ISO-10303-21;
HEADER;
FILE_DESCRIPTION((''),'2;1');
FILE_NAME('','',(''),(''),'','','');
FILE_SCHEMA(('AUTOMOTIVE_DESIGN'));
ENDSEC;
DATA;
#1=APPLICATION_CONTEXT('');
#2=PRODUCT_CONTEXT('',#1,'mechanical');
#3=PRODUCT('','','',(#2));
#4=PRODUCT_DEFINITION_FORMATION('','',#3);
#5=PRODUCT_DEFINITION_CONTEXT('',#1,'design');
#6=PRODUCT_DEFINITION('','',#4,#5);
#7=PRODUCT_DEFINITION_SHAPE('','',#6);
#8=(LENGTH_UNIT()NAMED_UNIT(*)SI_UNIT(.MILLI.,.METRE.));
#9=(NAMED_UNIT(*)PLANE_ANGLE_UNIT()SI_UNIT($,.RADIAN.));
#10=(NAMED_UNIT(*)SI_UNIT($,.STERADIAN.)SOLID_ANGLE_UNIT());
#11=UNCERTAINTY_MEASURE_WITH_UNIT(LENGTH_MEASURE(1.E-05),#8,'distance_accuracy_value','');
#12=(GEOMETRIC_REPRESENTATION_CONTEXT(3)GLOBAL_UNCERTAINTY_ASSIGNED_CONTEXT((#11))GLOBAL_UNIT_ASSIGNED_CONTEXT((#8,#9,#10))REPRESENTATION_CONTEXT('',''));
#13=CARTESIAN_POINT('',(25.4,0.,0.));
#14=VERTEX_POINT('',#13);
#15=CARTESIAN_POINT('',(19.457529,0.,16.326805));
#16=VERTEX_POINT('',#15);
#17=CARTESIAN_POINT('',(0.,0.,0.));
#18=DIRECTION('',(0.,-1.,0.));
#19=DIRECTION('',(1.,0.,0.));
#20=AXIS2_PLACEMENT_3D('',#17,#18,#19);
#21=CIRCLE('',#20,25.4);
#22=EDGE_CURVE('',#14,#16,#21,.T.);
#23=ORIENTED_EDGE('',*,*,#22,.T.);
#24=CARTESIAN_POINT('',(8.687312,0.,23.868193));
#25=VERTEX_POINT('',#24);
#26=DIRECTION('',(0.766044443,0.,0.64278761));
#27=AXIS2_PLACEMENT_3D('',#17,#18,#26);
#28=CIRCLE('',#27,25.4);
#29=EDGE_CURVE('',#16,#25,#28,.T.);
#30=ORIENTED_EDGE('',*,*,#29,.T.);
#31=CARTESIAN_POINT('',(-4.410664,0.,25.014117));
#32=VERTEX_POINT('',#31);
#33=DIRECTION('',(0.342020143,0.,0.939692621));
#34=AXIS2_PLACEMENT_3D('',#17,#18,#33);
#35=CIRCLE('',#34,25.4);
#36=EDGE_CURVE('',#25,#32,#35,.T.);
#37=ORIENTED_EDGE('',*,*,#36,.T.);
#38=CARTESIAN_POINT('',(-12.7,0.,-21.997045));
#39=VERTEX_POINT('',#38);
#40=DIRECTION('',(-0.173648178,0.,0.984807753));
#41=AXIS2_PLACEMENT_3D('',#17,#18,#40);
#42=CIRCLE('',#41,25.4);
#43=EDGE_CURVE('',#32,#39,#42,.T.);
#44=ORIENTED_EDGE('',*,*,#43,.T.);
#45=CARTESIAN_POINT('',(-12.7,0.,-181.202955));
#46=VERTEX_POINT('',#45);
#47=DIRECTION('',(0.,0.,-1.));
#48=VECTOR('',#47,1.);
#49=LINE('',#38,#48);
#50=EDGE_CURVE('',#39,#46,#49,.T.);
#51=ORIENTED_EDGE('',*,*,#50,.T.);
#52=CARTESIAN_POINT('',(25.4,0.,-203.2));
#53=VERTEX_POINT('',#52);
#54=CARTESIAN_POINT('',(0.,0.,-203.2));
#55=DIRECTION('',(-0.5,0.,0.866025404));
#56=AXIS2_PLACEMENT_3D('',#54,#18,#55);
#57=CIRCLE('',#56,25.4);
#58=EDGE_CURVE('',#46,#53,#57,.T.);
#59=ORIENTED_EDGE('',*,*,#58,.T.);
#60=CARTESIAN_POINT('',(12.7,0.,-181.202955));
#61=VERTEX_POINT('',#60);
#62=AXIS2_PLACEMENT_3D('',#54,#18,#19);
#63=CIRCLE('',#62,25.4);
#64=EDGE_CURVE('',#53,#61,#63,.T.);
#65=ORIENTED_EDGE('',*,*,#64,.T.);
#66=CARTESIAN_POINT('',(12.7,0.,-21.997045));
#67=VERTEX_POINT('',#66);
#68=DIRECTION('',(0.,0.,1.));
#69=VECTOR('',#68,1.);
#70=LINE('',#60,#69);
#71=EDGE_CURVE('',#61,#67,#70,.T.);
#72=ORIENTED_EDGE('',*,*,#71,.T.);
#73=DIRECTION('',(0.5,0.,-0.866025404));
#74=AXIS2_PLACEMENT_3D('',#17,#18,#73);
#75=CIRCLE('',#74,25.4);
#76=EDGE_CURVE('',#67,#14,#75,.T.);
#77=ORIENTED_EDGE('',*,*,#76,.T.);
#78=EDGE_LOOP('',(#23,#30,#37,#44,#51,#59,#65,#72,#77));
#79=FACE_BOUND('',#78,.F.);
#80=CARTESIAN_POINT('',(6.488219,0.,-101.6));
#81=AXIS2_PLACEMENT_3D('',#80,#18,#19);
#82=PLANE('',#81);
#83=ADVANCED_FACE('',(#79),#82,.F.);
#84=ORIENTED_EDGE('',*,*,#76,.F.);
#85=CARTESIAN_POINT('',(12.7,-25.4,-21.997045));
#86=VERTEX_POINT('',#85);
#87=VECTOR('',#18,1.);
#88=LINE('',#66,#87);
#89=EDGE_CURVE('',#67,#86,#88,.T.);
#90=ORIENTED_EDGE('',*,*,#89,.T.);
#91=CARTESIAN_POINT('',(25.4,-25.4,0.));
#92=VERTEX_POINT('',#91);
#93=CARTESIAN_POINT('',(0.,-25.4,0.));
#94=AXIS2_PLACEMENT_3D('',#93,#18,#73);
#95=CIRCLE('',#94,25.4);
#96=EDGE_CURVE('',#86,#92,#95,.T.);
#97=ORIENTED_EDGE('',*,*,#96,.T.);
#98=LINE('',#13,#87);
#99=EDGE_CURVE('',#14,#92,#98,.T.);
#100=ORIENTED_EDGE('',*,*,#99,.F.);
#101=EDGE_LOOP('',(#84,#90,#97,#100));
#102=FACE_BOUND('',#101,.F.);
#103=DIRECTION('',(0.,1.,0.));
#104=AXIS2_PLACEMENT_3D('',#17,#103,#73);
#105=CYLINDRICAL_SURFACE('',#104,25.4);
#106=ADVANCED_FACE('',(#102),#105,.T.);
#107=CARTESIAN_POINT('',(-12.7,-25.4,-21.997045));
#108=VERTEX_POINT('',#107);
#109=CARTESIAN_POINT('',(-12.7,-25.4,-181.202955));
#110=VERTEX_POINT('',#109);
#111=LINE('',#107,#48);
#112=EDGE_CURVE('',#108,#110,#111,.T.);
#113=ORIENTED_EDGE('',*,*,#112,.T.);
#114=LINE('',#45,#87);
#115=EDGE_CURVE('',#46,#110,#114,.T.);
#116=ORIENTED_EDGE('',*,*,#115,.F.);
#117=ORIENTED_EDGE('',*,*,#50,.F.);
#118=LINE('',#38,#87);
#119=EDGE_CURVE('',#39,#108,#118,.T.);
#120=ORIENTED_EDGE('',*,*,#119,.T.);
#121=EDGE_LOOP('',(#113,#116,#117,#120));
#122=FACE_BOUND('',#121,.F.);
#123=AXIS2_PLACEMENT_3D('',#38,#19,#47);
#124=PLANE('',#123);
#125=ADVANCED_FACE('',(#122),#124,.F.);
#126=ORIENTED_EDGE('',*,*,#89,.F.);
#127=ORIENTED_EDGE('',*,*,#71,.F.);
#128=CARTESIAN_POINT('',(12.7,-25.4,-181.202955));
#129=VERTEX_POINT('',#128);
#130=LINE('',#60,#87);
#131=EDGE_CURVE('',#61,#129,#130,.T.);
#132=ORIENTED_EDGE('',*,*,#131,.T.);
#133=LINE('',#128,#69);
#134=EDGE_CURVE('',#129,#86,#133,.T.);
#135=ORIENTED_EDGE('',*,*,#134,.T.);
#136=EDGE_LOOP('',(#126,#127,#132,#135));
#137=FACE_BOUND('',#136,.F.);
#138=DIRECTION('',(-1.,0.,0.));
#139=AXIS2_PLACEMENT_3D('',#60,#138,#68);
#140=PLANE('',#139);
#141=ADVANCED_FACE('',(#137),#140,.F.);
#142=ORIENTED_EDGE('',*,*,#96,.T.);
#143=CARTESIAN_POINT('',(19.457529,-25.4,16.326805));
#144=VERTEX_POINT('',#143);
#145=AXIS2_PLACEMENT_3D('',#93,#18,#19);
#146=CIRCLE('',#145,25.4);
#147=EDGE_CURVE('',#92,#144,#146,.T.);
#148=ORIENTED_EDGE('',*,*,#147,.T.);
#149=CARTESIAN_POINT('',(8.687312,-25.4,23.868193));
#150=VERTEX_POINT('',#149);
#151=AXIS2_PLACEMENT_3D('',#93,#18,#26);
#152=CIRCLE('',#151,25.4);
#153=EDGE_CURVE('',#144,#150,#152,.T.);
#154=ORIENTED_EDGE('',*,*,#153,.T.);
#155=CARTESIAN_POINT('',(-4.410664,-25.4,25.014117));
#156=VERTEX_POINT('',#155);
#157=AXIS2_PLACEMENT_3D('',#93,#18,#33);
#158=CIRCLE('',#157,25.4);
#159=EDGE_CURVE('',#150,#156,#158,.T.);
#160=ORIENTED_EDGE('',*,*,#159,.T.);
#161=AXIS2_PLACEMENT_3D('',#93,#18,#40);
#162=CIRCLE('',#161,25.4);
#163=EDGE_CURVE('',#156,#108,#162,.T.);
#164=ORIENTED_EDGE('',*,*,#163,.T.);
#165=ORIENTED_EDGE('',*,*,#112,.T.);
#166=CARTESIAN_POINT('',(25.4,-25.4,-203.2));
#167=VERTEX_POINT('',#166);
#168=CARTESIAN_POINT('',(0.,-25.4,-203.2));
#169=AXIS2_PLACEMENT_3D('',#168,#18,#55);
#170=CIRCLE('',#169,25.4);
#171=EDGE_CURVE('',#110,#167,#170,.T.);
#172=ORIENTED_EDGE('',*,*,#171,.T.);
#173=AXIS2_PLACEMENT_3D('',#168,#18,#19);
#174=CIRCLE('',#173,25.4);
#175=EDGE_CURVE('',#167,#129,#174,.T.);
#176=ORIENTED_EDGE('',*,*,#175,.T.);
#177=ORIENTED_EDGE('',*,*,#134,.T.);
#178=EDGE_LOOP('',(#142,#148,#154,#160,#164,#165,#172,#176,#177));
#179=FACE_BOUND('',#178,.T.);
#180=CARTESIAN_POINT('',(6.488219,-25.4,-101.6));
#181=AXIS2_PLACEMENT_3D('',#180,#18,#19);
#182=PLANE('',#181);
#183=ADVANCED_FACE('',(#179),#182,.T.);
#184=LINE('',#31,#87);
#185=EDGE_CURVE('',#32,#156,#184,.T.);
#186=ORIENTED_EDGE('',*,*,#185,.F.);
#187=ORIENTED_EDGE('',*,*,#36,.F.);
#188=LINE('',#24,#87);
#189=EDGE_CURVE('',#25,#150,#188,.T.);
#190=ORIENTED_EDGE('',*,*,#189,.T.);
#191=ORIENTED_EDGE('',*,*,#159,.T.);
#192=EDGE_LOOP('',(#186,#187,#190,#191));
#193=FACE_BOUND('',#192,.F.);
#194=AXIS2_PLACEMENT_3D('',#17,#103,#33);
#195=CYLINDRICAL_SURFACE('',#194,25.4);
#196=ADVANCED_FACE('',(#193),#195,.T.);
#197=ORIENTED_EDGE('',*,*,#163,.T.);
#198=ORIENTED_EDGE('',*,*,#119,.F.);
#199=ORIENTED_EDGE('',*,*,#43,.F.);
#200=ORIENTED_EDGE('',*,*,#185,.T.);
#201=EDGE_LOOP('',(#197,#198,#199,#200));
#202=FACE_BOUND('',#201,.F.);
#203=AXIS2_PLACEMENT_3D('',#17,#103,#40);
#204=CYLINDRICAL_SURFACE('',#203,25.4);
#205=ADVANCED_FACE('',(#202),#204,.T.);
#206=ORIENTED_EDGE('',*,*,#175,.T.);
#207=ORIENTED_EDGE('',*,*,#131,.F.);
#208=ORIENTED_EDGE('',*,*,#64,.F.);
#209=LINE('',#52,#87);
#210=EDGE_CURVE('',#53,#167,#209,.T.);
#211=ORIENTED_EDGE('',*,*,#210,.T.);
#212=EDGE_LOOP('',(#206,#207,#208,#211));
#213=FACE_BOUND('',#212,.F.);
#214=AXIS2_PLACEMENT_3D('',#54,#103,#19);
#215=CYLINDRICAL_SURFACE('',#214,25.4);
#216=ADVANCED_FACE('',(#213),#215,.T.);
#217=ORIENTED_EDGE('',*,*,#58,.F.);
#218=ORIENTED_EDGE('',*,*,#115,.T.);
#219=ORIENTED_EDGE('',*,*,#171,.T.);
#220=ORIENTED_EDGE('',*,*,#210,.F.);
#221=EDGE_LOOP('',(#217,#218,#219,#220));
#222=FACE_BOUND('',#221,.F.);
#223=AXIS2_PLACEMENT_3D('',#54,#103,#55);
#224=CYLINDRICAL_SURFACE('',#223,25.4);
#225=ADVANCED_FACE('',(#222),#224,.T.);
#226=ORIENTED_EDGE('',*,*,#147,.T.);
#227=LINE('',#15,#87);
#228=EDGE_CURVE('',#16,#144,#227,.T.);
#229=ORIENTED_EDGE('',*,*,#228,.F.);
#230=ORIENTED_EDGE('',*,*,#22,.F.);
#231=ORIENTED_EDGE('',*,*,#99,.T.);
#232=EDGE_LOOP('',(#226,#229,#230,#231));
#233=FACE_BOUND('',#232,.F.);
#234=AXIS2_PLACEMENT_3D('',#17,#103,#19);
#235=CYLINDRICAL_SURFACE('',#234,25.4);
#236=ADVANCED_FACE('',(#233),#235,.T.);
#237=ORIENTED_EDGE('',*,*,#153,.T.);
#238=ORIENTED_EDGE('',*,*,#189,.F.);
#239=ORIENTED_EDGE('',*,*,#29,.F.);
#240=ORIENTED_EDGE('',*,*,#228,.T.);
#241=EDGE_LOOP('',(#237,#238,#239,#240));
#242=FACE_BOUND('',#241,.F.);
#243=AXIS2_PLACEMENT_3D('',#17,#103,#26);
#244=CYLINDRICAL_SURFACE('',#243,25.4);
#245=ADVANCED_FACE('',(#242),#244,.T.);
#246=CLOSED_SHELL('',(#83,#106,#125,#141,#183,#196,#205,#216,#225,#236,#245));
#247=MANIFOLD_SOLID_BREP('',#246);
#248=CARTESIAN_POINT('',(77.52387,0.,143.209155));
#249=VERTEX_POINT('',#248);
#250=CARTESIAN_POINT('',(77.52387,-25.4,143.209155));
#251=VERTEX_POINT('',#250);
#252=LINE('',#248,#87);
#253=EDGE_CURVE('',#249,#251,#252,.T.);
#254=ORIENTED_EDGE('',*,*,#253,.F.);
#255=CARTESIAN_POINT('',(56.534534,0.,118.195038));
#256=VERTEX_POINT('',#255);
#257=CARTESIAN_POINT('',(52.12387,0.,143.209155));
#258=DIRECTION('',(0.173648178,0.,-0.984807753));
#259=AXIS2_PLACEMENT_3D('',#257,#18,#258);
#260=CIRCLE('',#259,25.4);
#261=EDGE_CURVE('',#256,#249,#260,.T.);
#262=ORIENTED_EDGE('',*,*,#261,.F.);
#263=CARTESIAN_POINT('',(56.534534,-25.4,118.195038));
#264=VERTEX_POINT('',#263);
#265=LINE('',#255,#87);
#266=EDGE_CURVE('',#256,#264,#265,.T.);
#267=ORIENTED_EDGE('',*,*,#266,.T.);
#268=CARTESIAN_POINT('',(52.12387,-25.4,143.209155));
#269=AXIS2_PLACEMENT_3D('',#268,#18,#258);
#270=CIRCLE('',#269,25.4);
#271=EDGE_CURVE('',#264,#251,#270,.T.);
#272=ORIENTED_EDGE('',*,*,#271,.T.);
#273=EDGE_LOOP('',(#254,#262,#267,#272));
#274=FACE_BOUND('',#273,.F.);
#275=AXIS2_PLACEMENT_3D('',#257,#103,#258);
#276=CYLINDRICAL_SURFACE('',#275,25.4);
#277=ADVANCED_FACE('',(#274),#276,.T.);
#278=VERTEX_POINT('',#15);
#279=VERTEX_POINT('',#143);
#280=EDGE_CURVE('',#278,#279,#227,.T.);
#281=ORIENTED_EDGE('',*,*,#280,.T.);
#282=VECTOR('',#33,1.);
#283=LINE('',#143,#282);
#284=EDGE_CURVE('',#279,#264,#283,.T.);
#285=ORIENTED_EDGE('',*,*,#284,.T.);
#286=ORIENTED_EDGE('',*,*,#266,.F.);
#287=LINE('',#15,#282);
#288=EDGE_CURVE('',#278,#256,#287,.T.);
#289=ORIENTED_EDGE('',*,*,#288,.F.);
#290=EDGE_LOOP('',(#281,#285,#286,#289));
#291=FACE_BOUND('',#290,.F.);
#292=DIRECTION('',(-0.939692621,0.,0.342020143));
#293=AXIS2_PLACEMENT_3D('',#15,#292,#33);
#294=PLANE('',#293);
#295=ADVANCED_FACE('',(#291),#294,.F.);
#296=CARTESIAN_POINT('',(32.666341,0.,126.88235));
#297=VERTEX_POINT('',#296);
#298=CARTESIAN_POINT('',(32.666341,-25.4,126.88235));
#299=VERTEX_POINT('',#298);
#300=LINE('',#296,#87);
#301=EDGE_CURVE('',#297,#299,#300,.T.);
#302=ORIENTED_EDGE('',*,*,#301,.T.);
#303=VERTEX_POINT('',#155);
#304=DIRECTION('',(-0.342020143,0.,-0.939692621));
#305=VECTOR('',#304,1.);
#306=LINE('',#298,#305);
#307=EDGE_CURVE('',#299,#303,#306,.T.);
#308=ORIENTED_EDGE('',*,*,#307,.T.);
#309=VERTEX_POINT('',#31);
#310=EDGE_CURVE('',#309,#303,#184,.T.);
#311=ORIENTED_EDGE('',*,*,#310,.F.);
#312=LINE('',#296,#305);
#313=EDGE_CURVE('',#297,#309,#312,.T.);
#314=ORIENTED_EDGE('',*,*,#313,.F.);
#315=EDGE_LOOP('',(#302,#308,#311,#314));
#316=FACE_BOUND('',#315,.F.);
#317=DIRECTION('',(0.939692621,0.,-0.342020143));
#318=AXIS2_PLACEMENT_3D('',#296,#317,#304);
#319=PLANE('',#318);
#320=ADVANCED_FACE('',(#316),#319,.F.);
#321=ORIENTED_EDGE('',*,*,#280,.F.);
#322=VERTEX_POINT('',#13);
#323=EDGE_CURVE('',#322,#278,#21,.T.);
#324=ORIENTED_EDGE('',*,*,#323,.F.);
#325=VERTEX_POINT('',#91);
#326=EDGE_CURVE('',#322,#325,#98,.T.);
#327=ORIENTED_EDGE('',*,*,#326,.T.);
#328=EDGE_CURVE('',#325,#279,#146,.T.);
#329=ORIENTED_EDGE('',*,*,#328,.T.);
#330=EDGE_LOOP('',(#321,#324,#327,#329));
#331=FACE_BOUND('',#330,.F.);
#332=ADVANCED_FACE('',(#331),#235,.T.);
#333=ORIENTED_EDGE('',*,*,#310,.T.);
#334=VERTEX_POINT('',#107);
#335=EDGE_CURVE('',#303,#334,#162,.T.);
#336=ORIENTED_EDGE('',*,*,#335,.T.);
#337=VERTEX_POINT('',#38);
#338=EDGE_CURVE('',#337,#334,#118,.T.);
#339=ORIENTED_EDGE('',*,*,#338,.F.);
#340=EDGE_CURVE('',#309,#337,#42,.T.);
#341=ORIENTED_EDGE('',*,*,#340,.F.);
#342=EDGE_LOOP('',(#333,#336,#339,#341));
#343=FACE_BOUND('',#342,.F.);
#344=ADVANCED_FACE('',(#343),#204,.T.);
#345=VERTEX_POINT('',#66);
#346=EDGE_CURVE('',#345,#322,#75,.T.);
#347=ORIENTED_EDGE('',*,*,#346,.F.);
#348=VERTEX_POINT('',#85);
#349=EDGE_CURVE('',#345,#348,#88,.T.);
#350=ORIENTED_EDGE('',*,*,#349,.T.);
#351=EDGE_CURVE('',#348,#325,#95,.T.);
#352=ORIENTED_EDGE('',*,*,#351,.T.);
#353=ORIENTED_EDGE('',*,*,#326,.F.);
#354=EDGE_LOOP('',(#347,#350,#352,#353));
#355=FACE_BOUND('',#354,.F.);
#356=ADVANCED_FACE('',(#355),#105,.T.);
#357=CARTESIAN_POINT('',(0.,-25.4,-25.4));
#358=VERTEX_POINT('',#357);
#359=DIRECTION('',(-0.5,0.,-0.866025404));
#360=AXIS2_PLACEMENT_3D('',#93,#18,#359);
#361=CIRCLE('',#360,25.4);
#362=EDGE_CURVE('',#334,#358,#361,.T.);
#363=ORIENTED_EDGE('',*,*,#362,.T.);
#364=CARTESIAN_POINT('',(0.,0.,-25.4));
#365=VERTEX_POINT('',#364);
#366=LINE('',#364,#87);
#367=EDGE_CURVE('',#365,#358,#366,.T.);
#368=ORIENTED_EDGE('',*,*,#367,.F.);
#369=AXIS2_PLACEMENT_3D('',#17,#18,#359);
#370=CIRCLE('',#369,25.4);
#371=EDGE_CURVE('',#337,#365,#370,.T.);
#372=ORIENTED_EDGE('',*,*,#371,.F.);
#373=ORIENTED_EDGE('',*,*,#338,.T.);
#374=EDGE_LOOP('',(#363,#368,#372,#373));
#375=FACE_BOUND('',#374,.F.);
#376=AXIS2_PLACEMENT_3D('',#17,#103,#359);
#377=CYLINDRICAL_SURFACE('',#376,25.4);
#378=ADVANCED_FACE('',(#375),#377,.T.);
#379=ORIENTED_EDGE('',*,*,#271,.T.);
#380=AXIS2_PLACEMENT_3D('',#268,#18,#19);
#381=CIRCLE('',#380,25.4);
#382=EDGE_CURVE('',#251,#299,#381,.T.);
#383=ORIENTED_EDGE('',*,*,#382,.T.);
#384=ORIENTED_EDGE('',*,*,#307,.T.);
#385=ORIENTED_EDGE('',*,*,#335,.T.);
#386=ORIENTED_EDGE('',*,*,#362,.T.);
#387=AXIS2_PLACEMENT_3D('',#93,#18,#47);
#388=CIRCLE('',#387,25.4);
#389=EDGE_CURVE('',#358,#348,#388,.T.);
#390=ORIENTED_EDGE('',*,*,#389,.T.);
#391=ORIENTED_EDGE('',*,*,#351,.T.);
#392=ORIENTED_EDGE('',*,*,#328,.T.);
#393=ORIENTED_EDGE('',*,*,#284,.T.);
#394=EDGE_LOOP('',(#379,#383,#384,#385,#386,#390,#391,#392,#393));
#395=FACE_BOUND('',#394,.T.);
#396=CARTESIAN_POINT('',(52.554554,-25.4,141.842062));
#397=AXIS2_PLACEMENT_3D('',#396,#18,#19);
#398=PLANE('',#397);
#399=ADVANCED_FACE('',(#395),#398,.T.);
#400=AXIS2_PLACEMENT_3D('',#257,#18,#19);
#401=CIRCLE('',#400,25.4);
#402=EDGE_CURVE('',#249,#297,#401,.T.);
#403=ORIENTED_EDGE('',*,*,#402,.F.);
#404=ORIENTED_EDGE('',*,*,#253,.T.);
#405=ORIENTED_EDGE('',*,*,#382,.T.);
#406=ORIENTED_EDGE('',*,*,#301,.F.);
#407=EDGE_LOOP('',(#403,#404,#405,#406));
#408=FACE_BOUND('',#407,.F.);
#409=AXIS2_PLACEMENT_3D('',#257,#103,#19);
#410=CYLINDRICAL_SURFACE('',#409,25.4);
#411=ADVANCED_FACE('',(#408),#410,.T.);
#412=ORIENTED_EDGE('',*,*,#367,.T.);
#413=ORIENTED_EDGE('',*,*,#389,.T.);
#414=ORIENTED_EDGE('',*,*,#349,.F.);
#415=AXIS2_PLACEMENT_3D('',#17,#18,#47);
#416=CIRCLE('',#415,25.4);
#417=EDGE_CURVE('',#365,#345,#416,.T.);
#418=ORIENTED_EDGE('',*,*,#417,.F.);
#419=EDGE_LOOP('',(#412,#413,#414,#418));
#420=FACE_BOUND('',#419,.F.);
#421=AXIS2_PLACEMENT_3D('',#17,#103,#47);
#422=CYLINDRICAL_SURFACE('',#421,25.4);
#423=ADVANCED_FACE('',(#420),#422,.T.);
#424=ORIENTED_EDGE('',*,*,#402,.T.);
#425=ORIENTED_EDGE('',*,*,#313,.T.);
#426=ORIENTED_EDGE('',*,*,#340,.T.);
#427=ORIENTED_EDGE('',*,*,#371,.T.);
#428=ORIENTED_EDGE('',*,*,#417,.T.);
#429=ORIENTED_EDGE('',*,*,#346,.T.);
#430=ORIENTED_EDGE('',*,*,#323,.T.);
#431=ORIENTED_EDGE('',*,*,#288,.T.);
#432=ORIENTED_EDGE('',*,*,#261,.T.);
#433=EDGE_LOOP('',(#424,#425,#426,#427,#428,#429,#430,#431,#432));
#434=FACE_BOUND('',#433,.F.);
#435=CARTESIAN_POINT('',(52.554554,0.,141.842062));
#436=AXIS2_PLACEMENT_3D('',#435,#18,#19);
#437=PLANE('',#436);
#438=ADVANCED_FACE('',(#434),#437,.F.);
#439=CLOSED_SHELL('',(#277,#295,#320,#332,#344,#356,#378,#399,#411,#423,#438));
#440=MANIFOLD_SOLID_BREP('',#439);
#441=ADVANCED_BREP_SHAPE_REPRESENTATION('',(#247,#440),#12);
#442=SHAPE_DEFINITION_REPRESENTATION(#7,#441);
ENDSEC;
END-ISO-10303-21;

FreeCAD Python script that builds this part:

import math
import FreeCAD as App
import Part
import Sketcher

V = App.Vector
Q = App.Units.Quantity

doc = App.newDocument("Part")
body = doc.addObject("PartDesign::Body", "Body")

sketch1 = body.newObject("Sketcher::SketchObject", "Sketch")
sketch1.AttachmentSupport = (doc.getObject("XZ_Plane"), [""])
sketch1.MapMode = "FlatFace"
sketch1.addGeometry([
    Part.LineSegment(V(13, -181, 0), V(13, -22, 0)),
    Part.ArcOfCircle(Part.Circle(V(0, 0, 0), V(0, 0, 1), 25), math.radians(-60), math.radians(0)),
    Part.ArcOfCircle(Part.Circle(V(0, 0, 0), V(0, 0, 1), 25), math.radians(0), math.radians(40)),
    Part.ArcOfCircle(Part.Circle(V(0, 0, 0), V(0, 0, 1), 25), math.radians(40), math.radians(70)),
    Part.ArcOfCircle(Part.Circle(V(0, 0, 0), V(0, 0, 1), 25), math.radians(70), math.radians(100)),
    Part.ArcOfCircle(Part.Circle(V(0, 0, 0), V(0, 0, 1), 25), math.radians(100), math.radians(240)),
    Part.LineSegment(V(-13, -22, 0), V(-13, -181, 0)),
    Part.ArcOfCircle(Part.Circle(V(0, -203, 0), V(0, 0, 1), 25), math.radians(120), math.radians(360)),
    Part.ArcOfCircle(Part.Circle(V(0, -203, 0), V(0, 0, 1), 25), math.radians(0), math.radians(60)),
], False)
sketch1.addConstraint([
    Sketcher.Constraint("Coincident", 0, 2, 1, 1),
    Sketcher.Constraint("Tangent", 1, 2, 2, 1),
    Sketcher.Constraint("Tangent", 2, 2, 3, 1),
    Sketcher.Constraint("Tangent", 3, 2, 4, 1),
    Sketcher.Constraint("Tangent", 4, 2, 5, 1),
    Sketcher.Constraint("Coincident", 5, 2, 6, 1),
    Sketcher.Constraint("Coincident", 6, 2, 7, 1),
    Sketcher.Constraint("Tangent", 7, 2, 8, 1),
    Sketcher.Constraint("Coincident", 8, 2, 0, 1),
    Sketcher.Constraint("Vertical", 0),
    Sketcher.Constraint("Vertical", 6),
    Sketcher.Constraint("Coincident", 1, 3, -1, 1),
    Sketcher.Constraint("Coincident", 3, 3, -1, 1),
    Sketcher.Constraint("Coincident", 5, 3, -1, 1),
    Sketcher.Constraint("Equal", 5, 7),
    Sketcher.Constraint("Equal", 7, 8),
    Sketcher.Constraint("Symmetric", 6, 2, 8, 2, -2),
    Sketcher.Constraint("PointOnObject", 1, 2, -1),
    Sketcher.Constraint("Horizontal", 8, 3, 7, 2),
    Sketcher.Constraint("Radius", 1, Q("1 in")),
    Sketcher.Constraint("DistanceY", 7, 3, -1, 1, Q("8 in")),
    Sketcher.Constraint("DistanceX", 5, 2, 0, 2, Q("1 in")),
    Sketcher.Constraint("DistanceX", -1, 1, 2, 2, 19.457529),
    Sketcher.Constraint("DistanceX", -1, 1, 3, 2, 8.687312),
    Sketcher.Constraint("DistanceY", 2, 2, 4, 2, 8.687312),
])
pad1 = body.newObject("PartDesign::Pad", "Pad")
pad1.Profile = sketch1
pad1.Length = Q("1 in")
body2 = doc.addObject("PartDesign::Body", "Body001")

sketch2 = body2.newObject("Sketcher::SketchObject", "Sketch001")
sketch2.AttachmentSupport = (doc.getObject("XZ_Plane001"), [""])
sketch2.MapMode = "FlatFace"
sketch2.addGeometry([
    Part.ArcOfCircle(Part.Circle(V(52, 143, 0), V(0, 0, 1), 25), math.radians(-80), math.radians(0)),
    Part.ArcOfCircle(Part.Circle(V(52, 143, 0), V(0, 0, 1), 25), math.radians(0), math.radians(220)),
    Part.LineSegment(V(33, 127, 0), V(-4, 25, 0)),
    Part.ArcOfCircle(Part.Circle(V(0, 0, 0), V(0, 0, 1), 25), math.radians(100), math.radians(240)),
    Part.ArcOfCircle(Part.Circle(V(0, 0, 0), V(0, 0, 1), 25), math.radians(-120), math.radians(-90)),
    Part.ArcOfCircle(Part.Circle(V(0, 0, 0), V(0, 0, 1), 25), math.radians(-90), math.radians(-60)),
    Part.ArcOfCircle(Part.Circle(V(0, 0, 0), V(0, 0, 1), 25), math.radians(-60), math.radians(0)),
    Part.ArcOfCircle(Part.Circle(V(0, 0, 0), V(0, 0, 1), 25), math.radians(0), math.radians(40)),
    Part.LineSegment(V(19, 16, 0), V(57, 118, 0)),
], False)
sketch2.addConstraint([
    Sketcher.Constraint("Tangent", 0, 2, 1, 1),
    Sketcher.Constraint("Coincident", 1, 2, 2, 1),
    Sketcher.Constraint("Coincident", 2, 2, 3, 1),
    Sketcher.Constraint("Tangent", 3, 2, 4, 1),
    Sketcher.Constraint("Tangent", 4, 2, 5, 1),
    Sketcher.Constraint("Tangent", 5, 2, 6, 1),
    Sketcher.Constraint("Tangent", 6, 2, 7, 1),
    Sketcher.Constraint("Coincident", 7, 2, 8, 1),
    Sketcher.Constraint("Coincident", 8, 2, 0, 1),
    Sketcher.Constraint("Coincident", 3, 3, -1, 1),
    Sketcher.Constraint("Coincident", 5, 3, -1, 1),
    Sketcher.Constraint("Coincident", 7, 3, -1, 1),
    Sketcher.Constraint("Equal", 0, 1),
    Sketcher.Constraint("Equal", 1, 3),
    Sketcher.Constraint("PointOnObject", 4, 2, -2),
    Sketcher.Constraint("PointOnObject", 6, 2, -1),
    Sketcher.Constraint("Parallel", 2, 8),
    Sketcher.Constraint("Horizontal", 1, 3, 0, 2),
    Sketcher.Constraint("Horizontal", 3, 2, 5, 2),
    Sketcher.Constraint("Equal", 2, 8),
    Sketcher.Constraint("Radius", 0, Q("1 in")),
    Sketcher.Constraint("Angle", 2, Q("-110 deg")),
    Sketcher.Constraint("DistanceX", 3, 2, 5, 2, Q("1 in")),
    Sketcher.Constraint("Distance", 2, 108.405909),
    Sketcher.Constraint("DistanceX", -1, 1, 0, 3, 52.12387),
    Sketcher.Constraint("DistanceX", -1, 1, 1, 2, 32.666341),
])
pad2 = body2.newObject("PartDesign::Pad", "Pad001")
pad2.Profile = sketch2
pad2.Length = Q("1 in")

doc.recompute()
